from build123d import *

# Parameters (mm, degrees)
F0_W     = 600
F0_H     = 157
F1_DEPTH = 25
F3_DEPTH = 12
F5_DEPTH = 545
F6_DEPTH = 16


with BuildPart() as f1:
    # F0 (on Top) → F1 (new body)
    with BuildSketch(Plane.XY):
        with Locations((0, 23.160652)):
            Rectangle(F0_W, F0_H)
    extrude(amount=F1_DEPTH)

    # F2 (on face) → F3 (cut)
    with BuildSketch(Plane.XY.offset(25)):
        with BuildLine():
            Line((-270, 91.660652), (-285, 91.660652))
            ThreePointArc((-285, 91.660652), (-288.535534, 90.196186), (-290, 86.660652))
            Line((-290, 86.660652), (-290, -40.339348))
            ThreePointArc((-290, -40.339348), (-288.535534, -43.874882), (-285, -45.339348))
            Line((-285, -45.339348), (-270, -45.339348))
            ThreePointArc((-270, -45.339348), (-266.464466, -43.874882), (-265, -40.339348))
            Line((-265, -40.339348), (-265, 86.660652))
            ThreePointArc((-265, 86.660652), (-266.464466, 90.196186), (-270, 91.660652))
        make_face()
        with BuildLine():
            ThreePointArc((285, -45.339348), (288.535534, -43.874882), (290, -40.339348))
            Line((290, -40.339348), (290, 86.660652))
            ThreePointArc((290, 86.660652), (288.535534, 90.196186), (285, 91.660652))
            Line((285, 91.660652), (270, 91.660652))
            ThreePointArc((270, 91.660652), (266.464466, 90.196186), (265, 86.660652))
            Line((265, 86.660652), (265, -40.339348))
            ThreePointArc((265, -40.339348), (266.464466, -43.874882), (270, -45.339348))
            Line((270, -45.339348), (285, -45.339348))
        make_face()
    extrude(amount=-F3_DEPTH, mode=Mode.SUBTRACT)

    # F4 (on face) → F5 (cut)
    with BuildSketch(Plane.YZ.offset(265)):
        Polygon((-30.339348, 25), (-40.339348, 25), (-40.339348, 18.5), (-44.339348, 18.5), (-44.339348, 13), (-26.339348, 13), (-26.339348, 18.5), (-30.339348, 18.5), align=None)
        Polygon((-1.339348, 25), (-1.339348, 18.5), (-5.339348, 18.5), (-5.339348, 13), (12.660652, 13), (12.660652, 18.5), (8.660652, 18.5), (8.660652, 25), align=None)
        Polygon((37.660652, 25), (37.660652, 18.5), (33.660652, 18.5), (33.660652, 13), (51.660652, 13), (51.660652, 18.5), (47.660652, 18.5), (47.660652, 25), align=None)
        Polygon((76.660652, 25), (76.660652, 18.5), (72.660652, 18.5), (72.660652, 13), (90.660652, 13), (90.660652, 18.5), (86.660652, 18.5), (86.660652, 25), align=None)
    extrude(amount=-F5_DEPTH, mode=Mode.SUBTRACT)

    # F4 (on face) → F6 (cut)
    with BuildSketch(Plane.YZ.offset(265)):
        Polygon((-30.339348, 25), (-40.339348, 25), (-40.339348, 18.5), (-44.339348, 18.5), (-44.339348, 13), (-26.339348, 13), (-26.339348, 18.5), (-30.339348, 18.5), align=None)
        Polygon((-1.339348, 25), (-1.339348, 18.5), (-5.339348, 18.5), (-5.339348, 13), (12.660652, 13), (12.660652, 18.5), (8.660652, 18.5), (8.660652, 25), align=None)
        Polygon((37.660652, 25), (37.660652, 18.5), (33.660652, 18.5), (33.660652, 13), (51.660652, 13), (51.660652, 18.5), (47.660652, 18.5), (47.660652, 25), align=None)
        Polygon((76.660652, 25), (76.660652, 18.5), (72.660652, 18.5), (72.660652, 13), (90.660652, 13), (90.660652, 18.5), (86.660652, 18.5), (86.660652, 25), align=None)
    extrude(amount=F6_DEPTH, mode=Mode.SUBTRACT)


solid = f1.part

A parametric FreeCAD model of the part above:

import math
import FreeCAD as App
import Part
import Sketcher
Q = App.Units.Quantity


def add_polygon(sketch, points):
    """Adds a closed chain of lines whose ends are joined by coincident constraints."""
    first, n = sketch.GeometryCount, len(points)
    for a, b in zip(points, points[1:] + points[:1]):
        sketch.addGeometry(Part.LineSegment(App.Vector(*a, 0), App.Vector(*b, 0)), False)
    for i in range(n):
        sketch.addConstraint(Sketcher.Constraint("Coincident", first + i, 2, first + (i + 1) % n, 1))

doc = App.newDocument("Part")
body = doc.addObject("PartDesign::Body", "Body")

# Sketch on XY plane
sketch1 = doc.addObject("Sketcher::SketchObject", "Sketch")
body.addObject(sketch1)
sketch1.AttachmentSupport = (doc.XY_Plane, [""])
sketch1.MapMode = "FlatFace"
add_polygon(sketch1, [(-300, 101.660652), (-300, -55.339348), (300, -55.339348), (300, 101.660652)])  # lines 0-3
sketch1.addConstraint(Sketcher.Constraint("Vertical", 0))
sketch1.addConstraint(Sketcher.Constraint("Horizontal", 1))
sketch1.addConstraint(Sketcher.Constraint("Vertical", 2))
sketch1.addConstraint(Sketcher.Constraint("Horizontal", 3))
sketch1.addConstraint(Sketcher.Constraint("DistanceX", 1, 1, 1, 2, Q("600 mm")))
sketch1.addConstraint(Sketcher.Constraint("DistanceY", 0, 2, 0, 1, Q("157 mm")))
sketch1.addConstraint(Sketcher.Constraint("DistanceX", 0, 2, -1, 1, Q("300 mm")))
sketch1.addConstraint(Sketcher.Constraint("DistanceY", -1, 1, 2, 2, Q("101.660652 mm")))
pad1 = doc.addObject("PartDesign::Pad", "Pad")
body.addObject(pad1)
pad1.Profile = sketch1
pad1.Length = 25

# Sketch on XY plane
sketch2 = doc.addObject("Sketcher::SketchObject", "Sketch001")
body.addObject(sketch2)
sketch2.AttachmentSupport = (doc.XY_Plane, [""])
sketch2.MapMode = "FlatFace"
sketch2.AttachmentOffset = App.Placement(App.Vector(0, 0, 25), App.Rotation())
sketch2.addGeometry(Part.LineSegment(App.Vector(-270, 91.660652, 0), App.Vector(-285, 91.660652, 0)), False)
sketch2.addGeometry(Part.ArcOfCircle(Part.Circle(App.Vector(-285, 86.660652, 0), App.Vector(0, 0, 1), 5), math.radians(89.999996), math.radians(180.000004)), False)
sketch2.addGeometry(Part.LineSegment(App.Vector(-290, 86.660652, 0), App.Vector(-290, -40.339348, 0)), False)
sketch2.addGeometry(Part.ArcOfCircle(Part.Circle(App.Vector(-285, -40.339348, 0), App.Vector(0, 0, 1), 5), math.radians(179.999996), math.radians(270.000004)), False)
sketch2.addGeometry(Part.LineSegment(App.Vector(-285, -45.339348, 0), App.Vector(-270, -45.339348, 0)), False)
sketch2.addGeometry(Part.ArcOfCircle(Part.Circle(App.Vector(-270, -40.339348, 0), App.Vector(0, 0, 1), 5), math.radians(-90.000004), math.radians(0.000004)), False)
sketch2.addGeometry(Part.LineSegment(App.Vector(-265, -40.339348, 0), App.Vector(-265, 86.660652, 0)), False)
sketch2.addGeometry(Part.ArcOfCircle(Part.Circle(App.Vector(-270, 86.660652, 0), App.Vector(0, 0, 1), 5), math.radians(-0.000004), math.radians(90.000004)), False)
sketch2.addGeometry(Part.ArcOfCircle(Part.Circle(App.Vector(285, -40.339348, 0), App.Vector(0, 0, 1), 5), math.radians(-90.000004), math.radians(0.000004)), False)
sketch2.addGeometry(Part.LineSegment(App.Vector(290, -40.339348, 0), App.Vector(290, 86.660652, 0)), False)
sketch2.addGeometry(Part.ArcOfCircle(Part.Circle(App.Vector(285, 86.660652, 0), App.Vector(0, 0, 1), 5), math.radians(-0.000004), math.radians(90.000004)), False)
sketch2.addGeometry(Part.LineSegment(App.Vector(285, 91.660652, 0), App.Vector(270, 91.660652, 0)), False)
sketch2.addGeometry(Part.ArcOfCircle(Part.Circle(App.Vector(270, 86.660652, 0), App.Vector(0, 0, 1), 5), math.radians(89.999996), math.radians(180.000004)), False)
sketch2.addGeometry(Part.LineSegment(App.Vector(265, 86.660652, 0), App.Vector(265, -40.339348, 0)), False)
sketch2.addGeometry(Part.ArcOfCircle(Part.Circle(App.Vector(270, -40.339348, 0), App.Vector(0, 0, 1), 5), math.radians(179.999996), math.radians(270.000004)), False)
sketch2.addGeometry(Part.LineSegment(App.Vector(270, -45.339348, 0), App.Vector(285, -45.339348, 0)), False)
sketch2.addConstraint(Sketcher.Constraint("Tangent", 0, 2, 1, 1))
sketch2.addConstraint(Sketcher.Constraint("Tangent", 1, 2, 2, 1))
sketch2.addConstraint(Sketcher.Constraint("Tangent", 2, 2, 3, 1))
sketch2.addConstraint(Sketcher.Constraint("Tangent", 3, 2, 4, 1))
sketch2.addConstraint(Sketcher.Constraint("Tangent", 4, 2, 5, 1))
sketch2.addConstraint(Sketcher.Constraint("Tangent", 5, 2, 6, 1))
sketch2.addConstraint(Sketcher.Constraint("Tangent", 6, 2, 7, 1))
sketch2.addConstraint(Sketcher.Constraint("Tangent", 7, 2, 0, 1))
sketch2.addConstraint(Sketcher.Constraint("Tangent", 8, 2, 9, 1))
sketch2.addConstraint(Sketcher.Constraint("Tangent", 9, 2, 10, 1))
sketch2.addConstraint(Sketcher.Constraint("Tangent", 10, 2, 11, 1))
sketch2.addConstraint(Sketcher.Constraint("Tangent", 11, 2, 12, 1))
sketch2.addConstraint(Sketcher.Constraint("Tangent", 12, 2, 13, 1))
sketch2.addConstraint(Sketcher.Constraint("Tangent", 13, 2, 14, 1))
sketch2.addConstraint(Sketcher.Constraint("Tangent", 14, 2, 15, 1))
sketch2.addConstraint(Sketcher.Constraint("Tangent", 15, 2, 8, 1))
sketch2.addConstraint(Sketcher.Constraint("Horizontal", 0))
sketch2.addConstraint(Sketcher.Constraint("Vertical", 2))
sketch2.addConstraint(Sketcher.Constraint("Horizontal", 4))
sketch2.addConstraint(Sketcher.Constraint("Vertical", 6))
sketch2.addConstraint(Sketcher.Constraint("Vertical", 9))
sketch2.addConstraint(Sketcher.Constraint("Horizontal", 11))
sketch2.addConstraint(Sketcher.Constraint("Vertical", 13))
sketch2.addConstraint(Sketcher.Constraint("Horizontal", 15))
sketch2.addConstraint(Sketcher.Constraint("Equal", 1, 3))
sketch2.addConstraint(Sketcher.Constraint("Equal", 3, 5))
sketch2.addConstraint(Sketcher.Constraint("Equal", 5, 7))
sketch2.addConstraint(Sketcher.Constraint("Equal", 7, 8))
sketch2.addConstraint(Sketcher.Constraint("Equal", 8, 10))
sketch2.addConstraint(Sketcher.Constraint("Equal", 10, 12))
sketch2.addConstraint(Sketcher.Constraint("Equal", 12, 14))
sketch2.addConstraint(Sketcher.Constraint("Symmetric", 3, 3, 8, 3, -2))
sketch2.addConstraint(Sketcher.Constraint("Symmetric", 7, 3, 12, 3, -2))
sketch2.addConstraint(Sketcher.Constraint("Radius", 1, Q("5 mm")))
sketch2.addConstraint(Sketcher.Constraint("DistanceX", 0, 2, 0, 1, Q("15 mm")))
sketch2.addConstraint(Sketcher.Constraint("DistanceY", 2, 2, 2, 1, Q("127 mm")))
sketch2.addConstraint(Sketcher.Constraint("DistanceX", 1, 3, -1, 1, Q("285 mm")))
sketch2.addConstraint(Sketcher.Constraint("DistanceY", 3, 3, -1, 1, Q("40.339348 mm")))
pocket1 = doc.addObject("PartDesign::Pocket", "Pocket")
body.addObject(pocket1)
pocket1.Profile = sketch2
pocket1.Length = 12

# Sketch on YZ plane
sketch3 = doc.addObject("Sketcher::SketchObject", "Sketch002")
body.addObject(sketch3)
sketch3.AttachmentSupport = (doc.YZ_Plane, [""])
sketch3.MapMode = "FlatFace"
sketch3.AttachmentOffset = App.Placement(App.Vector(0, 0, 265), App.Rotation())
add_polygon(sketch3, [(-30.339348, 25), (-40.339348, 25), (-40.339348, 18.5), (-44.339348, 18.5), (-44.339348, 13), (-26.339348, 13), (-26.339348, 18.5), (-30.339348, 18.5)])  # lines 0-7
add_polygon(sketch3, [(-1.339348, 25), (-1.339348, 18.5), (-5.339348, 18.5), (-5.339348, 13), (12.660652, 13), (12.660652, 18.5), (8.660652, 18.5), (8.660652, 25)])  # lines 8-15
add_polygon(sketch3, [(37.660652, 25), (37.660652, 18.5), (33.660652, 18.5), (33.660652, 13), (51.660652, 13), (51.660652, 18.5), (47.660652, 18.5), (47.660652, 25)])  # lines 16-23
add_polygon(sketch3, [(76.660652, 25), (76.660652, 18.5), (72.660652, 18.5), (72.660652, 13), (90.660652, 13), (90.660652, 18.5), (86.660652, 18.5), (86.660652, 25)])  # lines 24-31
sketch3.addConstraint(Sketcher.Constraint("Horizontal", 0))
sketch3.addConstraint(Sketcher.Constraint("Vertical", 1))
sketch3.addConstraint(Sketcher.Constraint("Horizontal", 2))
sketch3.addConstraint(Sketcher.Constraint("Vertical", 3))
sketch3.addConstraint(Sketcher.Constraint("Horizontal", 4))
sketch3.addConstraint(Sketcher.Constraint("Vertical", 5))
sketch3.addConstraint(Sketcher.Constraint("Horizontal", 6))
sketch3.addConstraint(Sketcher.Constraint("Vertical", 7))
sketch3.addConstraint(Sketcher.Constraint("Vertical", 8))
sketch3.addConstraint(Sketcher.Constraint("Horizontal", 9))
sketch3.addConstraint(Sketcher.Constraint("Vertical", 10))
sketch3.addConstraint(Sketcher.Constraint("Horizontal", 11))
sketch3.addConstraint(Sketcher.Constraint("Vertical", 12))
sketch3.addConstraint(Sketcher.Constraint("Horizontal", 13))
sketch3.addConstraint(Sketcher.Constraint("Vertical", 14))
sketch3.addConstraint(Sketcher.Constraint("Horizontal", 15))
sketch3.addConstraint(Sketcher.Constraint("Vertical", 16))
sketch3.addConstraint(Sketcher.Constraint("Horizontal", 17))
sketch3.addConstraint(Sketcher.Constraint("Vertical", 18))
sketch3.addConstraint(Sketcher.Constraint("Horizontal", 19))
sketch3.addConstraint(Sketcher.Constraint("Vertical", 20))
sketch3.addConstraint(Sketcher.Constraint("Horizontal", 21))
sketch3.addConstraint(Sketcher.Constraint("Vertical", 22))
sketch3.addConstraint(Sketcher.Constraint("Horizontal", 23))
sketch3.addConstraint(Sketcher.Constraint("Vertical", 24))
sketch3.addConstraint(Sketcher.Constraint("Horizontal", 25))
sketch3.addConstraint(Sketcher.Constraint("Vertical", 26))
sketch3.addConstraint(Sketcher.Constraint("Horizontal", 27))
sketch3.addConstraint(Sketcher.Constraint("Vertical", 28))
sketch3.addConstraint(Sketcher.Constraint("Horizontal", 29))
sketch3.addConstraint(Sketcher.Constraint("Vertical", 30))
sketch3.addConstraint(Sketcher.Constraint("Horizontal", 31))
sketch3.addConstraint(Sketcher.Constraint("Horizontal", 2, 2, 5, 2))
sketch3.addConstraint(Sketcher.Constraint("Horizontal", 6, 2, 8, 2))
sketch3.addConstraint(Sketcher.Constraint("Horizontal", 4, 2, 10, 2))
sketch3.addConstraint(Sketcher.Constraint("Horizontal", 9, 2, 12, 2))
sketch3.addConstraint(Sketcher.Constraint("Horizontal", 7, 2, 14, 2))
sketch3.addConstraint(Sketcher.Constraint("Horizontal", 13, 2, 16, 2))
sketch3.addConstraint(Sketcher.Constraint("Horizontal", 11, 2, 18, 2))
sketch3.addConstraint(Sketcher.Constraint("Horizontal", 17, 2, 20, 2))
sketch3.addConstraint(Sketcher.Constraint("Horizontal", 15, 2, 22, 2))
sketch3.addConstraint(Sketcher.Constraint("Horizontal", 21, 2, 24, 2))
sketch3.addConstraint(Sketcher.Constraint("Horizontal", 19, 2, 26, 2))
sketch3.addConstraint(Sketcher.Constraint("Horizontal", 25, 2, 28, 2))
sketch3.addConstraint(Sketcher.Constraint("Horizontal", 23, 2, 30, 2))
sketch3.addConstraint(Sketcher.Constraint("Equal", 2, 6))
sketch3.addConstraint(Sketcher.Constraint("Equal", 6, 9))
sketch3.addConstraint(Sketcher.Constraint("Equal", 4, 11))
sketch3.addConstraint(Sketcher.Constraint("Equal", 9, 13))
sketch3.addConstraint(Sketcher.Constraint("Equal", 13, 17))
sketch3.addConstraint(Sketcher.Constraint("Equal", 11, 19))
sketch3.addConstraint(Sketcher.Constraint("Equal", 17, 21))
sketch3.addConstraint(Sketcher.Constraint("Equal", 21, 25))
sketch3.addConstraint(Sketcher.Constraint("Equal", 19, 27))
sketch3.addConstraint(Sketcher.Constraint("Equal", 25, 29))
sketch3.addConstraint(Sketcher.Constraint("DistanceX", 0, 2, 0, 1, Q("10 mm")))
sketch3.addConstraint(Sketcher.Constraint("DistanceX", 2, 2, 2, 1, Q("4 mm")))
sketch3.addConstraint(Sketcher.Constraint("DistanceY", 1, 2, 1, 1, Q("6.5 mm")))
sketch3.addConstraint(Sketcher.Constraint("DistanceY", 3, 2, 3, 1, Q("5.5 mm")))
sketch3.addConstraint(Sketcher.Constraint("DistanceY", -1, 1, 0, 2, Q("25 mm")))
sketch3.addConstraint(Sketcher.Constraint("DistanceX", 5, 2, 8, 2, Q("25 mm")))
sketch3.addConstraint(Sketcher.Constraint("DistanceX", 12, 2, 16, 2, Q("25 mm")))
sketch3.addConstraint(Sketcher.Constraint("DistanceX", 20, 2, 24, 2, Q("25 mm")))
sketch3.addConstraint(Sketcher.Constraint("DistanceX", 4, 2, -1, 1, Q("26.339348 mm")))
pocket2 = doc.addObject("PartDesign::Pocket", "Pocket001")
body.addObject(pocket2)
pocket2.Profile = sketch3
pocket2.Length = 545

# Sketch on YZ plane
sketch4 = doc.addObject("Sketcher::SketchObject", "Sketch003")
body.addObject(sketch4)
sketch4.AttachmentSupport = (doc.YZ_Plane, [""])
sketch4.MapMode = "FlatFace"
sketch4.AttachmentOffset = App.Placement(App.Vector(0, 0, 265), App.Rotation())
add_polygon(sketch4, [(-30.339348, 25), (-40.339348, 25), (-40.339348, 18.5), (-44.339348, 18.5), (-44.339348, 13), (-26.339348, 13), (-26.339348, 18.5), (-30.339348, 18.5)])  # lines 0-7
add_polygon(sketch4, [(-1.339348, 25), (-1.339348, 18.5), (-5.339348, 18.5), (-5.339348, 13), (12.660652, 13), (12.660652, 18.5), (8.660652, 18.5), (8.660652, 25)])  # lines 8-15
add_polygon(sketch4, [(37.660652, 25), (37.660652, 18.5), (33.660652, 18.5), (33.660652, 13), (51.660652, 13), (51.660652, 18.5), (47.660652, 18.5), (47.660652, 25)])  # lines 16-23
add_polygon(sketch4, [(76.660652, 25), (76.660652, 18.5), (72.660652, 18.5), (72.660652, 13), (90.660652, 13), (90.660652, 18.5), (86.660652, 18.5), (86.660652, 25)])  # lines 24-31
sketch4.addConstraint(Sketcher.Constraint("Horizontal", 0))
sketch4.addConstraint(Sketcher.Constraint("Vertical", 1))
sketch4.addConstraint(Sketcher.Constraint("Horizontal", 2))
sketch4.addConstraint(Sketcher.Constraint("Vertical", 3))
sketch4.addConstraint(Sketcher.Constraint("Horizontal", 4))
sketch4.addConstraint(Sketcher.Constraint("Vertical", 5))
sketch4.addConstraint(Sketcher.Constraint("Horizontal", 6))
sketch4.addConstraint(Sketcher.Constraint("Vertical", 7))
sketch4.addConstraint(Sketcher.Constraint("Vertical", 8))
sketch4.addConstraint(Sketcher.Constraint("Horizontal", 9))
sketch4.addConstraint(Sketcher.Constraint("Vertical", 10))
sketch4.addConstraint(Sketcher.Constraint("Horizontal", 11))
sketch4.addConstraint(Sketcher.Constraint("Vertical", 12))
sketch4.addConstraint(Sketcher.Constraint("Horizontal", 13))
sketch4.addConstraint(Sketcher.Constraint("Vertical", 14))
sketch4.addConstraint(Sketcher.Constraint("Horizontal", 15))
sketch4.addConstraint(Sketcher.Constraint("Vertical", 16))
sketch4.addConstraint(Sketcher.Constraint("Horizontal", 17))
sketch4.addConstraint(Sketcher.Constraint("Vertical", 18))
sketch4.addConstraint(Sketcher.Constraint("Horizontal", 19))
sketch4.addConstraint(Sketcher.Constraint("Vertical", 20))
sketch4.addConstraint(Sketcher.Constraint("Horizontal", 21))
sketch4.addConstraint(Sketcher.Constraint("Vertical", 22))
sketch4.addConstraint(Sketcher.Constraint("Horizontal", 23))
sketch4.addConstraint(Sketcher.Constraint("Vertical", 24))
sketch4.addConstraint(Sketcher.Constraint("Horizontal", 25))
sketch4.addConstraint(Sketcher.Constraint("Vertical", 26))
sketch4.addConstraint(Sketcher.Constraint("Horizontal", 27))
sketch4.addConstraint(Sketcher.Constraint("Vertical", 28))
sketch4.addConstraint(Sketcher.Constraint("Horizontal", 29))
sketch4.addConstraint(Sketcher.Constraint("Vertical", 30))
sketch4.addConstraint(Sketcher.Constraint("Horizontal", 31))
sketch4.addConstraint(Sketcher.Constraint("Horizontal", 2, 2, 5, 2))
sketch4.addConstraint(Sketcher.Constraint("Horizontal", 6, 2, 8, 2))
sketch4.addConstraint(Sketcher.Constraint("Horizontal", 4, 2, 10, 2))
sketch4.addConstraint(Sketcher.Constraint("Horizontal", 9, 2, 12, 2))
sketch4.addConstraint(Sketcher.Constraint("Horizontal", 7, 2, 14, 2))
sketch4.addConstraint(Sketcher.Constraint("Horizontal", 13, 2, 16, 2))
sketch4.addConstraint(Sketcher.Constraint("Horizontal", 11, 2, 18, 2))
sketch4.addConstraint(Sketcher.Constraint("Horizontal", 17, 2, 20, 2))
sketch4.addConstraint(Sketcher.Constraint("Horizontal", 15, 2, 22, 2))
sketch4.addConstraint(Sketcher.Constraint("Horizontal", 21, 2, 24, 2))
sketch4.addConstraint(Sketcher.Constraint("Horizontal", 19, 2, 26, 2))
sketch4.addConstraint(Sketcher.Constraint("Horizontal", 25, 2, 28, 2))
sketch4.addConstraint(Sketcher.Constraint("Horizontal", 23, 2, 30, 2))
sketch4.addConstraint(Sketcher.Constraint("Equal", 2, 6))
sketch4.addConstraint(Sketcher.Constraint("Equal", 6, 9))
sketch4.addConstraint(Sketcher.Constraint("Equal", 4, 11))
sketch4.addConstraint(Sketcher.Constraint("Equal", 9, 13))
sketch4.addConstraint(Sketcher.Constraint("Equal", 13, 17))
sketch4.addConstraint(Sketcher.Constraint("Equal", 11, 19))
sketch4.addConstraint(Sketcher.Constraint("Equal", 17, 21))
sketch4.addConstraint(Sketcher.Constraint("Equal", 21, 25))
sketch4.addConstraint(Sketcher.Constraint("Equal", 19, 27))
sketch4.addConstraint(Sketcher.Constraint("Equal", 25, 29))
sketch4.addConstraint(Sketcher.Constraint("DistanceX", 0, 2, 0, 1, Q("10 mm")))
sketch4.addConstraint(Sketcher.Constraint("DistanceX", 2, 2, 2, 1, Q("4 mm")))
sketch4.addConstraint(Sketcher.Constraint("DistanceY", 1, 2, 1, 1, Q("6.5 mm")))
sketch4.addConstraint(Sketcher.Constraint("DistanceY", 3, 2, 3, 1, Q("5.5 mm")))
sketch4.addConstraint(Sketcher.Constraint("DistanceY", -1, 1, 0, 2, Q("25 mm")))
sketch4.addConstraint(Sketcher.Constraint("DistanceX", 5, 2, 8, 2, Q("25 mm")))
sketch4.addConstraint(Sketcher.Constraint("DistanceX", 12, 2, 16, 2, Q("25 mm")))
sketch4.addConstraint(Sketcher.Constraint("DistanceX", 20, 2, 24, 2, Q("25 mm")))
sketch4.addConstraint(Sketcher.Constraint("DistanceX", 4, 2, -1, 1, Q("26.339348 mm")))
pocket3 = doc.addObject("PartDesign::Pocket", "Pocket002")
body.addObject(pocket3)
pocket3.Profile = sketch4
pocket3.Length = 16
pocket3.Reversed = True

doc.recompute()
